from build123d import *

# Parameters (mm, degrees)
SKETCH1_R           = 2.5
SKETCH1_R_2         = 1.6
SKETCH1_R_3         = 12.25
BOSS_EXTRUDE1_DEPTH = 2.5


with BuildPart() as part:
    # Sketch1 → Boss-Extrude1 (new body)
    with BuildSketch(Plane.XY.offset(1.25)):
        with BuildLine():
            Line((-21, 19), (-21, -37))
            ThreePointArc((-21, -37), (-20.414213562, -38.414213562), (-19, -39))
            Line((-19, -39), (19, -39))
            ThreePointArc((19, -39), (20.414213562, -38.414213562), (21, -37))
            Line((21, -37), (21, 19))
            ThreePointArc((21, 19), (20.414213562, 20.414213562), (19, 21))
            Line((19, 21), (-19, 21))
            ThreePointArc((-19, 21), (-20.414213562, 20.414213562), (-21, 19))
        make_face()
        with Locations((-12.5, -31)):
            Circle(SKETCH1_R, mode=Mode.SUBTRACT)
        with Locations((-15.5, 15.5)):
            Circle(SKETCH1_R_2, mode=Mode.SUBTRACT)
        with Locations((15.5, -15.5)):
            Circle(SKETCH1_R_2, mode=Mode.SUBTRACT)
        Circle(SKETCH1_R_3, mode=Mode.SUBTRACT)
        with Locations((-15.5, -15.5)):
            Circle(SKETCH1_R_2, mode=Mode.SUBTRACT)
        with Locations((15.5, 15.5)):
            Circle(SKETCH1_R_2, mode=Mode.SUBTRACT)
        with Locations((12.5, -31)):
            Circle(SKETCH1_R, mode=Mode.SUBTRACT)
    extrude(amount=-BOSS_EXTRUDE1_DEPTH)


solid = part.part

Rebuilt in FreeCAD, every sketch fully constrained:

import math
import FreeCAD as App
import Part
import Sketcher

doc = App.newDocument("Part")
body = doc.addObject("PartDesign::Body", "Body")

sketch1 = body.newObject("Sketcher::SketchObject", "Sketch")
sketch1.AttachmentSupport = (doc.getObject("XY_Plane"), [""])
sketch1.MapMode = "FlatFace"
sketch1.AttachmentOffset = App.Placement(App.Vector(0, 0, 1.25), App.Rotation())
sketch1.addGeometry([
    Part.LineSegment(App.Vector(-21, 19, 0), App.Vector(-21, -37, 0)),
    Part.ArcOfCircle(Part.Circle(App.Vector(-19, -37, 0), App.Vector(0, 0, 1), 2), math.radians(-180), math.radians(-90)),
    Part.LineSegment(App.Vector(-19, -39, 0), App.Vector(19, -39, 0)),
    Part.ArcOfCircle(Part.Circle(App.Vector(19, -37, 0), App.Vector(0, 0, 1), 2), math.radians(-90), math.radians(0)),
    Part.LineSegment(App.Vector(21, -37, 0), App.Vector(21, 19, 0)),
    Part.ArcOfCircle(Part.Circle(App.Vector(19, 19, 0), App.Vector(0, 0, 1), 2), math.radians(0), math.radians(90)),
    Part.LineSegment(App.Vector(19, 21, 0), App.Vector(-19, 21, 0)),
    Part.ArcOfCircle(Part.Circle(App.Vector(-19, 19, 0), App.Vector(0, 0, 1), 2), math.radians(90), math.radians(180)),
    Part.Circle(App.Vector(-12.5, -31, 0), App.Vector(0, 0, 1), 2.5),
    Part.Circle(App.Vector(-15.5, -15.5, 0), App.Vector(0, 0, 1), 1.6),
    Part.Circle(App.Vector(12.5, -31, 0), App.Vector(0, 0, 1), 2.5),
    Part.Circle(App.Vector(15.5, -15.5, 0), App.Vector(0, 0, 1), 1.6),
    Part.Circle(App.Vector(-15.5, 15.5, 0), App.Vector(0, 0, 1), 1.6),
    Part.Circle(App.Vector(0, 0, 0), App.Vector(0, 0, 1), 12.2),
    Part.Circle(App.Vector(15.5, 15.5, 0), App.Vector(0, 0, 1), 1.6),
], False)
sketch1.addConstraint([
    Sketcher.Constraint("Tangent", 0, 2, 1, 1),
    Sketcher.Constraint("Tangent", 1, 2, 2, 1),
    Sketcher.Constraint("Tangent", 2, 2, 3, 1),
    Sketcher.Constraint("Tangent", 3, 2, 4, 1),
    Sketcher.Constraint("Tangent", 4, 2, 5, 1),
    Sketcher.Constraint("Tangent", 5, 2, 6, 1),
    Sketcher.Constraint("Tangent", 6, 2, 7, 1),
    Sketcher.Constraint("Tangent", 7, 2, 0, 1),
    Sketcher.Constraint("Vertical", 0),
    Sketcher.Constraint("Horizontal", 2),
    Sketcher.Constraint("Vertical", 4),
    Sketcher.Constraint("Horizontal", 6),
    Sketcher.Constraint("Coincident", 13, 3, -1, 1),
    Sketcher.Constraint("Equal", 1, 3),
    Sketcher.Constraint("Equal", 3, 5),
    Sketcher.Constraint("Equal", 5, 7),
    Sketcher.Constraint("Equal", 8, 10),
    Sketcher.Constraint("Equal", 9, 11),
    Sketcher.Constraint("Equal", 11, 12),
    Sketcher.Constraint("Equal", 12, 14),
    Sketcher.Constraint("Symmetric", 11, 3, 12, 3, -1, 1),
    Sketcher.Constraint("Symmetric", 9, 3, 14, 3, -1, 1),
    Sketcher.Constraint("Symmetric", 8, 3, 10, 3, -2),
    Sketcher.Constraint("Symmetric", 9, 3, 11, 3, -2),
    Sketcher.Constraint("Diameter", 8, 5.0),
    Sketcher.Constraint("Radius", 1, 2.0),
    Sketcher.Constraint("Diameter", 9, 3.2),
    Sketcher.Constraint("Diameter", 13, 24.5),
    Sketcher.Constraint("DistanceX", 2, 1, 2, 2, 38.0),
    Sketcher.Constraint("DistanceY", 0, 2, 0, 1, 56.0),
    Sketcher.Constraint("DistanceX", 1, 3, -1, 1, 19.0),
    Sketcher.Constraint("DistanceY", 1, 3, -1, 1, 37.0),
    Sketcher.Constraint("DistanceY", 8, 3, -1, 1, 31.0),
    Sketcher.Constraint("DistanceX", 9, 3, 8, 3, 3.0),
    Sketcher.Constraint("DistanceX", 8, 3, 10, 3, 25.0),
    Sketcher.Constraint("DistanceY", 9, 3, 12, 3, 31.0),
])
pad1 = body.newObject("PartDesign::Pad", "Pad")
pad1.Profile = sketch1
pad1.Length = 2.5
pad1.Reversed = True

doc.recompute()
